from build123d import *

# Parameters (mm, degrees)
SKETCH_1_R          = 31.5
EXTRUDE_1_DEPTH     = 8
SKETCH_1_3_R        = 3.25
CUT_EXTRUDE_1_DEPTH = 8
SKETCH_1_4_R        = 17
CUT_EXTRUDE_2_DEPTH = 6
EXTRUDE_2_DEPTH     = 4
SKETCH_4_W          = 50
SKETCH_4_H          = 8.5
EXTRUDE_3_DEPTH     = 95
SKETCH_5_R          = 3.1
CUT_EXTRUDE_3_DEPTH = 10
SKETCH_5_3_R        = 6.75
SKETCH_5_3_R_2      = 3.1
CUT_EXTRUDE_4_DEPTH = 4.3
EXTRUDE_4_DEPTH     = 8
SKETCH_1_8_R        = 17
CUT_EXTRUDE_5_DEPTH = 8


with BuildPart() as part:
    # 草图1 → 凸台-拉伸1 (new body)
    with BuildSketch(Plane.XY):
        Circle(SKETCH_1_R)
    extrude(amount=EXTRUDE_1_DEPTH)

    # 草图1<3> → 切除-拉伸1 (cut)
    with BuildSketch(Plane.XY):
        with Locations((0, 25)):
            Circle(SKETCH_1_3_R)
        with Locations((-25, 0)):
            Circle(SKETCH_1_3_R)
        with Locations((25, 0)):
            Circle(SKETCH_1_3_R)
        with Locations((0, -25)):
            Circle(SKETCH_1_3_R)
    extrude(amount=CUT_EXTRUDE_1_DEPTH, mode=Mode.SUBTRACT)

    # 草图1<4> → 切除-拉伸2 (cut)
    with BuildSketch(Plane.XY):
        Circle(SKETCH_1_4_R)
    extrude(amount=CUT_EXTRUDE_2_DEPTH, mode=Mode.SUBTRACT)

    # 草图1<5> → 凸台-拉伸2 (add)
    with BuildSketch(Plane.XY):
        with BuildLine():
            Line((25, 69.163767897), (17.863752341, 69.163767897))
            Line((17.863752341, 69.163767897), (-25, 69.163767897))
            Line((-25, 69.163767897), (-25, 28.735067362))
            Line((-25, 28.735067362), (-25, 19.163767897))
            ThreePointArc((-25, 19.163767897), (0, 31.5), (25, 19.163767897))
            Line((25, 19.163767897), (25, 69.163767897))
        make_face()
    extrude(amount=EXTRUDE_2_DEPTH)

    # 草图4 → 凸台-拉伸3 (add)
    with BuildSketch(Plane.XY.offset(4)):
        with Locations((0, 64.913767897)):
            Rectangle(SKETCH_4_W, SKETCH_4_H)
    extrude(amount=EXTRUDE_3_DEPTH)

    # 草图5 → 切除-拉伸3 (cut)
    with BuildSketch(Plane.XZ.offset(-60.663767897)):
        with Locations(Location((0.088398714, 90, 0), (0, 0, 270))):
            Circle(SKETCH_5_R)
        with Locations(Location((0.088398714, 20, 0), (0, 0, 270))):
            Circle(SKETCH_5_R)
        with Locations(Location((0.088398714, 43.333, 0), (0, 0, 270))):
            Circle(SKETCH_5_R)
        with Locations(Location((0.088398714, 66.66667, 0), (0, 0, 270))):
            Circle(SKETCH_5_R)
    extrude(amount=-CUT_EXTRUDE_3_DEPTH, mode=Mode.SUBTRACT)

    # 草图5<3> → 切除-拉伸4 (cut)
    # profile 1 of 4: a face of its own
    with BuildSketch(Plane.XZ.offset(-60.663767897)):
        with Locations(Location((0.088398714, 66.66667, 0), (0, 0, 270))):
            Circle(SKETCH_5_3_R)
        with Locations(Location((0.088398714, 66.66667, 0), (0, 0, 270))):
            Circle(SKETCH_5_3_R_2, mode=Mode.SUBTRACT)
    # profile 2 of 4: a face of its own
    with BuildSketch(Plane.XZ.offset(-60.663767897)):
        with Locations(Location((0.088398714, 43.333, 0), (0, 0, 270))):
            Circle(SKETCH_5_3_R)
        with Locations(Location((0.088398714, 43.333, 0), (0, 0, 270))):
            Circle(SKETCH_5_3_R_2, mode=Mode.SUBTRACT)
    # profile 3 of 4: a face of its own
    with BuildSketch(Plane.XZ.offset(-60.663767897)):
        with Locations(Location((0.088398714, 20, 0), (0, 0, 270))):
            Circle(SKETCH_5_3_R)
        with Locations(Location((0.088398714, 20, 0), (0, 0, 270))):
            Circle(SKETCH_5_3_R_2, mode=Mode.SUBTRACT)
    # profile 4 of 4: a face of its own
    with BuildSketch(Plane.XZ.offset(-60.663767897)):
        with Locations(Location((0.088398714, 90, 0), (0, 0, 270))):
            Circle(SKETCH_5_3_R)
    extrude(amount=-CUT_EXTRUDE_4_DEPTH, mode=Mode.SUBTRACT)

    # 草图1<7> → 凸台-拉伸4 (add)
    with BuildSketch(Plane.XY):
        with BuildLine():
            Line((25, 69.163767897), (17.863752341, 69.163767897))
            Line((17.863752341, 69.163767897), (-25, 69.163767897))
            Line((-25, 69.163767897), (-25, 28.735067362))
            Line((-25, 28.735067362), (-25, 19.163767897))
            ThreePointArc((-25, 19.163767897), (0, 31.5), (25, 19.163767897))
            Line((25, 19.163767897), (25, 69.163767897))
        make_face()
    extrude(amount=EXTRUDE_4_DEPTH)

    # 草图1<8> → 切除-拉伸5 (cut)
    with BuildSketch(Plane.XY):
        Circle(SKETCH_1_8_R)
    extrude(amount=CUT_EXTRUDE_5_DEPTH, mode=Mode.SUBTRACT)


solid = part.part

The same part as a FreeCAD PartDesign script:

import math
import FreeCAD as App
import Part
import Sketcher

V = App.Vector


def add_polygon(sketch, points):
    """Adds a closed chain of lines whose ends are joined by coincident constraints."""
    first, n = sketch.GeometryCount, len(points)
    for a, b in zip(points, points[1:] + points[:1]):
        sketch.addGeometry(Part.LineSegment(App.Vector(*a, 0), App.Vector(*b, 0)), False)
    for i in range(n):
        sketch.addConstraint(Sketcher.Constraint("Coincident", first + i, 2, first + (i + 1) % n, 1))

doc = App.newDocument("Part")
body = doc.addObject("PartDesign::Body", "Body")

sketch1 = body.newObject("Sketcher::SketchObject", "Sketch")
sketch1.AttachmentSupport = (doc.getObject("XY_Plane"), [""])
sketch1.MapMode = "FlatFace"
sketch1.addGeometry(Part.Circle(V(0, 0, 0), V(0, 0, 1), 31.5), False)
sketch1.addConstraint(Sketcher.Constraint("Coincident", 0, 3, -1, 1))
sketch1.addConstraint(Sketcher.Constraint("Diameter", 0, 63.0))
pad1 = body.newObject("PartDesign::Pad", "Pad")
pad1.Profile = sketch1
pad1.Length = 8

sketch2 = body.newObject("Sketcher::SketchObject", "Sketch001")
sketch2.AttachmentSupport = (doc.getObject("XY_Plane"), [""])
sketch2.MapMode = "FlatFace"
sketch2.addGeometry(Part.Circle(V(0, 25, 0), V(0, 0, 1), 3.25), False)
sketch2.addGeometry(Part.Circle(V(-25, 0, 0), V(0, 0, 1), 3.25), False)
sketch2.addGeometry(Part.Circle(V(25, 0, 0), V(0, 0, 1), 3.25), False)
sketch2.addGeometry(Part.Circle(V(0, -25, 0), V(0, 0, 1), 3.25), False)
sketch2.addConstraint(Sketcher.Constraint("Equal", 0, 1))
sketch2.addConstraint(Sketcher.Constraint("Equal", 1, 2))
sketch2.addConstraint(Sketcher.Constraint("Equal", 2, 3))
sketch2.addConstraint(Sketcher.Constraint("Symmetric", 1, 3, 2, 3, -1, 1))
sketch2.addConstraint(Sketcher.Constraint("Symmetric", 0, 3, 3, 3, -1, 1))
sketch2.addConstraint(Sketcher.Constraint("PointOnObject", 0, 3, -2))
sketch2.addConstraint(Sketcher.Constraint("PointOnObject", 1, 3, -1))
sketch2.addConstraint(Sketcher.Constraint("Diameter", 0, 6.5))
sketch2.addConstraint(Sketcher.Constraint("DistanceY", -1, 1, 0, 3, 25.0))
sketch2.addConstraint(Sketcher.Constraint("DistanceX", 1, 3, -1, 1, 25.0))
pocket1 = body.newObject("PartDesign::Pocket", "Pocket")
pocket1.Profile = sketch2
pocket1.Length = 8
pocket1.Reversed = True

sketch3 = body.newObject("Sketcher::SketchObject", "Sketch002")
sketch3.AttachmentSupport = (doc.getObject("XY_Plane"), [""])
sketch3.MapMode = "FlatFace"
sketch3.addGeometry(Part.Circle(V(0, 0, 0), V(0, 0, 1), 17), False)
sketch3.addConstraint(Sketcher.Constraint("Coincident", 0, 3, -1, 1))
sketch3.addConstraint(Sketcher.Constraint("Diameter", 0, 34.0))
pocket2 = body.newObject("PartDesign::Pocket", "Pocket001")
pocket2.Profile = sketch3
pocket2.Length = 6
pocket2.Reversed = True

sketch4 = body.newObject("Sketcher::SketchObject", "Sketch003")
sketch4.AttachmentSupport = (doc.getObject("XY_Plane"), [""])
sketch4.MapMode = "FlatFace"
sketch4.addGeometry(Part.LineSegment(V(25, 69.163768, 0), V(-25, 69.163768, 0)), False)
sketch4.addGeometry(Part.LineSegment(V(-25, 69.163768, 0), V(-25, 19.163768, 0)), False)
sketch4.addGeometry(Part.ArcOfCircle(Part.Circle(V(0, 0, 0), V(0, 0, 1), 31.5), math.radians(37.471995), math.radians(142.528005)), False)
sketch4.addGeometry(Part.LineSegment(V(25, 19.163768, 0), V(25, 69.163768, 0)), False)
sketch4.addConstraint(Sketcher.Constraint("Coincident", 0, 2, 1, 1))
sketch4.addConstraint(Sketcher.Constraint("Coincident", 1, 2, 2, 2))
sketch4.addConstraint(Sketcher.Constraint("Coincident", 2, 1, 3, 1))
sketch4.addConstraint(Sketcher.Constraint("Coincident", 3, 2, 0, 1))
sketch4.addConstraint(Sketcher.Constraint("Horizontal", 0))
sketch4.addConstraint(Sketcher.Constraint("Vertical", 1))
sketch4.addConstraint(Sketcher.Constraint("Vertical", 3))
sketch4.addConstraint(Sketcher.Constraint("Coincident", 2, 3, -1, 1))
sketch4.addConstraint(Sketcher.Constraint("Horizontal", 1, 2, 2, 1))
sketch4.addConstraint(Sketcher.Constraint("Equal", 0, 1))
sketch4.addConstraint(Sketcher.Constraint("Radius", 2, 31.5))
sketch4.addConstraint(Sketcher.Constraint("DistanceX", 0, 2, 0, 1, 50.0))
pad2 = body.newObject("PartDesign::Pad", "Pad001")
pad2.Profile = sketch4
pad2.Length = 4

sketch5 = body.newObject("Sketcher::SketchObject", "Sketch004")
sketch5.AttachmentSupport = (doc.getObject("XY_Plane"), [""])
sketch5.MapMode = "FlatFace"
sketch5.AttachmentOffset = App.Placement(V(0, 0, 4), App.Rotation())
add_polygon(sketch5, [(-25, 69.163768), (-25, 60.663768), (25, 60.663768), (25, 69.163768)])
sketch5.addConstraint(Sketcher.Constraint("Vertical", 0))
sketch5.addConstraint(Sketcher.Constraint("Horizontal", 1))
sketch5.addConstraint(Sketcher.Constraint("Vertical", 2))
sketch5.addConstraint(Sketcher.Constraint("Horizontal", 3))
sketch5.addConstraint(Sketcher.Constraint("DistanceX", 1, 1, 1, 2, 50.0))
sketch5.addConstraint(Sketcher.Constraint("DistanceY", 0, 2, 0, 1, 8.5))
sketch5.addConstraint(Sketcher.Constraint("DistanceX", 0, 2, -1, 1, 25.0))
sketch5.addConstraint(Sketcher.Constraint("DistanceY", -1, 1, 0, 2, 60.663768))
pad3 = body.newObject("PartDesign::Pad", "Pad002")
pad3.Profile = sketch5
pad3.Length = 95

sketch6 = body.newObject("Sketcher::SketchObject", "Sketch005")
sketch6.AttachmentSupport = (doc.getObject("XZ_Plane"), [""])
sketch6.MapMode = "FlatFace"
sketch6.AttachmentOffset = App.Placement(V(0, 0, -60.663768), App.Rotation())
sketch6.addGeometry(Part.Circle(V(0.088399, 90, 0), V(0, 0, 1), 3.1), False)
sketch6.addGeometry(Part.Circle(V(0.088399, 20, 0), V(0, 0, 1), 3.1), False)
sketch6.addGeometry(Part.Circle(V(0.088399, 43.333, 0), V(0, 0, 1), 3.1), False)
sketch6.addGeometry(Part.Circle(V(0.088399, 66.66667, 0), V(0, 0, 1), 3.1), False)
sketch6.addConstraint(Sketcher.Constraint("Equal", 0, 1))
sketch6.addConstraint(Sketcher.Constraint("Equal", 1, 2))
sketch6.addConstraint(Sketcher.Constraint("Equal", 2, 3))
sketch6.addConstraint(Sketcher.Constraint("Vertical", 0, 3, 1, 3))
sketch6.addConstraint(Sketcher.Constraint("Vertical", 1, 3, 2, 3))
sketch6.addConstraint(Sketcher.Constraint("Vertical", 2, 3, 3, 3))
sketch6.addConstraint(Sketcher.Constraint("Diameter", 0, 6.2))
sketch6.addConstraint(Sketcher.Constraint("DistanceY", -1, 1, 0, 3, 90.0))
sketch6.addConstraint(Sketcher.Constraint("DistanceY", -1, 1, 1, 3, 20.0))
sketch6.addConstraint(Sketcher.Constraint("DistanceY", -1, 1, 2, 3, 43.333))
sketch6.addConstraint(Sketcher.Constraint("DistanceX", -1, 1, 0, 3, 0.088399))
sketch6.addConstraint(Sketcher.Constraint("DistanceY", -1, 1, 3, 3, 66.66667))
pocket3 = body.newObject("PartDesign::Pocket", "Pocket002")
pocket3.Profile = sketch6
pocket3.Length = 10

sketch7 = body.newObject("Sketcher::SketchObject", "Sketch006")
sketch7.AttachmentSupport = (doc.getObject("XZ_Plane"), [""])
sketch7.MapMode = "FlatFace"
sketch7.AttachmentOffset = App.Placement(V(0, 0, -60.663768), App.Rotation())
sketch7.addGeometry(Part.Circle(V(0.088399, 66.66667, 0), V(0, 0, 1), 6.75), False)
sketch7.addGeometry(Part.Circle(V(0.088399, 66.66667, 0), V(0, 0, 1), 3.1), False)
sketch7.addGeometry(Part.Circle(V(0.088399, 43.333, 0), V(0, 0, 1), 6.75), False)
sketch7.addGeometry(Part.Circle(V(0.088399, 43.333, 0), V(0, 0, 1), 3.1), False)
sketch7.addGeometry(Part.Circle(V(0.088399, 20, 0), V(0, 0, 1), 6.75), False)
sketch7.addGeometry(Part.Circle(V(0.088399, 20, 0), V(0, 0, 1), 3.1), False)
sketch7.addGeometry(Part.Circle(V(0.088399, 90, 0), V(0, 0, 1), 6.75), False)
sketch7.addConstraint(Sketcher.Constraint("Coincident", 1, 3, 0, 3))
sketch7.addConstraint(Sketcher.Constraint("Coincident", 3, 3, 2, 3))
sketch7.addConstraint(Sketcher.Constraint("Coincident", 5, 3, 4, 3))
sketch7.addConstraint(Sketcher.Constraint("Equal", 0, 2))
sketch7.addConstraint(Sketcher.Constraint("Equal", 1, 3))
sketch7.addConstraint(Sketcher.Constraint("Equal", 2, 4))
sketch7.addConstraint(Sketcher.Constraint("Equal", 3, 5))
sketch7.addConstraint(Sketcher.Constraint("Equal", 4, 6))
sketch7.addConstraint(Sketcher.Constraint("Vertical", 1, 3, 2, 3))
sketch7.addConstraint(Sketcher.Constraint("Vertical", 3, 3, 4, 3))
sketch7.addConstraint(Sketcher.Constraint("Vertical", 5, 3, 6, 3))
sketch7.addConstraint(Sketcher.Constraint("Diameter", 0, 13.5))
sketch7.addConstraint(Sketcher.Constraint("Diameter", 1, 6.2))
sketch7.addConstraint(Sketcher.Constraint("DistanceY", -1, 1, 4, 3, 20.0))
sketch7.addConstraint(Sketcher.Constraint("DistanceY", -1, 1, 6, 3, 90.0))
sketch7.addConstraint(Sketcher.Constraint("DistanceY", -1, 1, 2, 3, 43.333))
sketch7.addConstraint(Sketcher.Constraint("DistanceX", -1, 1, 0, 3, 0.088399))
sketch7.addConstraint(Sketcher.Constraint("DistanceY", -1, 1, 0, 3, 66.66667))
pocket4 = body.newObject("PartDesign::Pocket", "Pocket003")
pocket4.Profile = sketch7
pocket4.Length = 4.3

sketch8 = body.newObject("Sketcher::SketchObject", "Sketch007")
sketch8.AttachmentSupport = (doc.getObject("XY_Plane"), [""])
sketch8.MapMode = "FlatFace"
sketch8.addGeometry(Part.LineSegment(V(25, 69.163768, 0), V(-25, 69.163768, 0)), False)
sketch8.addGeometry(Part.LineSegment(V(-25, 69.163768, 0), V(-25, 19.163768, 0)), False)
sketch8.addGeometry(Part.ArcOfCircle(Part.Circle(V(0, 0, 0), V(0, 0, 1), 31.5), math.radians(37.471995), math.radians(142.528005)), False)
sketch8.addGeometry(Part.LineSegment(V(25, 19.163768, 0), V(25, 69.163768, 0)), False)
sketch8.addConstraint(Sketcher.Constraint("Coincident", 0, 2, 1, 1))
sketch8.addConstraint(Sketcher.Constraint("Coincident", 1, 2, 2, 2))
sketch8.addConstraint(Sketcher.Constraint("Coincident", 2, 1, 3, 1))
sketch8.addConstraint(Sketcher.Constraint("Coincident", 3, 2, 0, 1))
sketch8.addConstraint(Sketcher.Constraint("Horizontal", 0))
sketch8.addConstraint(Sketcher.Constraint("Vertical", 1))
sketch8.addConstraint(Sketcher.Constraint("Vertical", 3))
sketch8.addConstraint(Sketcher.Constraint("Coincident", 2, 3, -1, 1))
sketch8.addConstraint(Sketcher.Constraint("Horizontal", 1, 2, 2, 1))
sketch8.addConstraint(Sketcher.Constraint("Equal", 0, 1))
sketch8.addConstraint(Sketcher.Constraint("Radius", 2, 31.5))
sketch8.addConstraint(Sketcher.Constraint("DistanceX", 0, 2, 0, 1, 50.0))
pad4 = body.newObject("PartDesign::Pad", "Pad003")
pad4.Profile = sketch8
pad4.Length = 8

sketch9 = body.newObject("Sketcher::SketchObject", "Sketch008")
sketch9.AttachmentSupport = (doc.getObject("XY_Plane"), [""])
sketch9.MapMode = "FlatFace"
sketch9.addGeometry(Part.Circle(V(0, 0, 0), V(0, 0, 1), 17), False)
sketch9.addConstraint(Sketcher.Constraint("Coincident", 0, 3, -1, 1))
sketch9.addConstraint(Sketcher.Constraint("Diameter", 0, 34.0))
pocket5 = body.newObject("PartDesign::Pocket", "Pocket004")
pocket5.Profile = sketch9
pocket5.Length = 8
pocket5.Reversed = True

doc.recompute()
